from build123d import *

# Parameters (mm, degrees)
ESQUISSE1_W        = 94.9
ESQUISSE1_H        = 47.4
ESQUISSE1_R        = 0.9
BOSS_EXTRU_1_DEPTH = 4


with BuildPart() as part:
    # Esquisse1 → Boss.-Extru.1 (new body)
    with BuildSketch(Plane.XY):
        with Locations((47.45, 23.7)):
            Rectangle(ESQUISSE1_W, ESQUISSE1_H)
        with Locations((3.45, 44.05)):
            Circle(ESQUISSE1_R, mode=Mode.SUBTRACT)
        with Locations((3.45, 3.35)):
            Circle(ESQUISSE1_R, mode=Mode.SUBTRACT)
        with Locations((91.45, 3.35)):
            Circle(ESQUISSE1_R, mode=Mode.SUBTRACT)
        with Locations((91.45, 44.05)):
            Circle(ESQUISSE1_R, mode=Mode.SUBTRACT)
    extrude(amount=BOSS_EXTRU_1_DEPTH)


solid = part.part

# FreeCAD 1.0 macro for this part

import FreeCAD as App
import Part
import Sketcher
from FreeCAD import Vector
Q = App.Units.Quantity

doc = App.newDocument("Part")
body = doc.addObject("PartDesign::Body", "Body")

# Sketch on XY plane
sketch1 = body.newObject("Sketcher::SketchObject", "Sketch")
sketch1.AttachmentSupport = (doc.getObject("XY_Plane"), [""])
sketch1.MapMode = "FlatFace"
sketch1.addGeometry([
    Part.LineSegment(Vector(0, 47.4, 0), Vector(0, 0, 0)),  # 0
    Part.LineSegment(Vector(0, 0, 0), Vector(94.9, 0, 0)),  # 1
    Part.LineSegment(Vector(94.9, 0, 0), Vector(94.9, 47.4, 0)),  # 2
    Part.LineSegment(Vector(94.9, 47.4, 0), Vector(0, 47.4, 0)),  # 3
    Part.Circle(Vector(3.5, 3.4, 0), Vector(0, 0, 1), 0.9),  # 4
    Part.Circle(Vector(91.5, 3.4, 0), Vector(0, 0, 1), 0.9),  # 5
    Part.Circle(Vector(3.5, 44, 0), Vector(0, 0, 1), 0.9),  # 6
    Part.Circle(Vector(91.5, 44, 0), Vector(0, 0, 1), 0.9),  # 7
], False)
sketch1.addConstraint([
    Sketcher.Constraint("Coincident", 0, 2, 1, 1),
    Sketcher.Constraint("Coincident", 1, 2, 2, 1),
    Sketcher.Constraint("Coincident", 2, 2, 3, 1),
    Sketcher.Constraint("Coincident", 3, 2, 0, 1),
    Sketcher.Constraint("Vertical", 0),
    Sketcher.Constraint("Horizontal", 1),
    Sketcher.Constraint("Vertical", 2),
    Sketcher.Constraint("Horizontal", 3),
    Sketcher.Constraint("Coincident", 0, 2, -1, 1),
    Sketcher.Constraint("Equal", 4, 5),
    Sketcher.Constraint("Equal", 5, 6),
    Sketcher.Constraint("Equal", 6, 7),
    Sketcher.Constraint("Horizontal", 4, 3, 5, 3),
    Sketcher.Constraint("Horizontal", 6, 3, 7, 3),
    Sketcher.Constraint("Vertical", 4, 3, 6, 3),
    Sketcher.Constraint("Vertical", 5, 3, 7, 3),
    Sketcher.Constraint("Diameter", 4, Q("1.8 mm")),
    Sketcher.Constraint("DistanceX", 1, 1, 1, 2, Q("94.9 mm")),
    Sketcher.Constraint("DistanceY", 0, 2, 0, 1, Q("47.4 mm")),
    Sketcher.Constraint("DistanceX", 4, 3, 5, 3, Q("88 mm")),
    Sketcher.Constraint("DistanceY", 4, 3, 6, 3, Q("40.7 mm")),
    Sketcher.Constraint("DistanceX", -1, 1, 4, 3, Q("3.45 mm")),
    Sketcher.Constraint("DistanceY", -1, 1, 4, 3, Q("3.35 mm")),
])
pad1 = body.newObject("PartDesign::Pad", "Pad")
pad1.Profile = sketch1
pad1.Length = 4

doc.recompute()
